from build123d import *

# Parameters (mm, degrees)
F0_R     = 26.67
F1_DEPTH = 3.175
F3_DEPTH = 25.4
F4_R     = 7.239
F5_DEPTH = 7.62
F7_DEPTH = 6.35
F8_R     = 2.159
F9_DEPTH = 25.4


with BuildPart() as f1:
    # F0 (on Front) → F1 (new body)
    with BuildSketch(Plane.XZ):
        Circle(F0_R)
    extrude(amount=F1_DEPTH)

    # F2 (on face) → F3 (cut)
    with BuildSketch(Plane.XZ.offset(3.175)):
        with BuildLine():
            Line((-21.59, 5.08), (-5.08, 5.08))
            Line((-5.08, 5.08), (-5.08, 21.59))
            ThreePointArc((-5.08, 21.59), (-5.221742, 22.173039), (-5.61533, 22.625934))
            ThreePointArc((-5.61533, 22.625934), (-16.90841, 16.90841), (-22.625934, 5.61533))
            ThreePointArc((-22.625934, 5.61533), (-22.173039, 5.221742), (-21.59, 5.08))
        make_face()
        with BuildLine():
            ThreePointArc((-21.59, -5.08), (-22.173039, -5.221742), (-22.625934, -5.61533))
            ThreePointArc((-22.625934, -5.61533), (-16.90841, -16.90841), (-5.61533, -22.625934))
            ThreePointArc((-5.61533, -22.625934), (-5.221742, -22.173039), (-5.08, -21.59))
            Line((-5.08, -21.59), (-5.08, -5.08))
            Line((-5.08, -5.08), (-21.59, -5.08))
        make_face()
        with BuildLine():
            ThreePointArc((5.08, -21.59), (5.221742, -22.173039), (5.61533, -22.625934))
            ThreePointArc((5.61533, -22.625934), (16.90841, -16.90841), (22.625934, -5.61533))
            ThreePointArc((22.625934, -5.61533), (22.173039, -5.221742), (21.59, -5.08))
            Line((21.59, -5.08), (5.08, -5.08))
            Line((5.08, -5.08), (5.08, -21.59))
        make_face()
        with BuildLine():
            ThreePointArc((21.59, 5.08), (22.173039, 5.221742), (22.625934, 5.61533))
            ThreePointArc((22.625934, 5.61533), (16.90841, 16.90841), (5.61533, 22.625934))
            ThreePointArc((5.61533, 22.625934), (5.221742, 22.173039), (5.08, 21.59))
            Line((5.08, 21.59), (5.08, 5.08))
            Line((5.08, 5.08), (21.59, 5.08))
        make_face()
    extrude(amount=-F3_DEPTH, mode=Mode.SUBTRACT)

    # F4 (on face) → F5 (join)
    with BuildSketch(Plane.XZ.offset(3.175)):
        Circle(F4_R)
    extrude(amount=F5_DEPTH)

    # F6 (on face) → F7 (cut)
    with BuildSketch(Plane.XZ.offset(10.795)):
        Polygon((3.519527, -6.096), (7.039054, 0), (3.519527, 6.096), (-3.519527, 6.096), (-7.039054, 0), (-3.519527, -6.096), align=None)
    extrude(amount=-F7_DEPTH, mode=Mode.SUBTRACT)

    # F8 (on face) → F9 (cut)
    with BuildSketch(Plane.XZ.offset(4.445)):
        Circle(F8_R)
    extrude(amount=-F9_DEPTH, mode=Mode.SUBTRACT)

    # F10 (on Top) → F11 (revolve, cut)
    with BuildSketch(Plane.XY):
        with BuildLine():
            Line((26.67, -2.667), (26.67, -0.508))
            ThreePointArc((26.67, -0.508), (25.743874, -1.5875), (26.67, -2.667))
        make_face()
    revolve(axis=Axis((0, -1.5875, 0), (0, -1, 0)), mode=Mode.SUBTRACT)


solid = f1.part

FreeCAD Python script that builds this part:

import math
import FreeCAD as App
import Part
import Sketcher
Q = App.Units.Quantity


def add_polygon(sketch, points):
    """Adds a closed chain of lines whose ends are joined by coincident constraints."""
    first, n = sketch.GeometryCount, len(points)
    for a, b in zip(points, points[1:] + points[:1]):
        sketch.addGeometry(Part.LineSegment(App.Vector(*a, 0), App.Vector(*b, 0)), False)
    for i in range(n):
        sketch.addConstraint(Sketcher.Constraint("Coincident", first + i, 2, first + (i + 1) % n, 1))

doc = App.newDocument("Part")
body = doc.addObject("PartDesign::Body", "Body")

sketch1 = body.newObject("Sketcher::SketchObject", "Sketch")
sketch1.AttachmentSupport = (doc.getObject("XZ_Plane"), [""])
sketch1.MapMode = "FlatFace"
sketch1.addGeometry(Part.Circle(App.Vector(0, 0, 0), App.Vector(0, 0, 1), 27), False)
sketch1.addConstraint(Sketcher.Constraint("Coincident", 0, 3, -1, 1))
sketch1.addConstraint(Sketcher.Constraint("Diameter", 0, Q("2.1 in")))
pad1 = body.newObject("PartDesign::Pad", "Pad")
pad1.Profile = sketch1
pad1.Length = Q("0.125 in")

sketch2 = body.newObject("Sketcher::SketchObject", "Sketch001")
sketch2.AttachmentSupport = (doc.getObject("XZ_Plane"), [""])
sketch2.MapMode = "FlatFace"
sketch2.AttachmentOffset = App.Placement(App.Vector(0, 0, 0.125 * 25.4), App.Rotation())
sketch2.addGeometry(Part.LineSegment(App.Vector(-21.6, 5.1, 0), App.Vector(-5.1, 5.1, 0)), False)
sketch2.addGeometry(Part.LineSegment(App.Vector(-5.1, 5.1, 0), App.Vector(-5.1, 21.6, 0)), False)
sketch2.addGeometry(Part.ArcOfCircle(Part.Circle(App.Vector(-6.3, 21.6, 0), App.Vector(0, 0, 1), 1.3), math.radians(0), math.radians(55)), False)
sketch2.addGeometry(Part.ArcOfCircle(Part.Circle(App.Vector(-2.5, 2.5, 0), App.Vector(0, 0, 1), 20.3), math.radians(99), math.radians(171)), False)
sketch2.addGeometry(Part.ArcOfCircle(Part.Circle(App.Vector(-21.6, 6.3, 0), App.Vector(0, 0, 1), 1.3), math.radians(-145), math.radians(-90)), False)
sketch2.addGeometry(Part.ArcOfCircle(Part.Circle(App.Vector(-21.6, -6.3, 0), App.Vector(0, 0, 1), 1.3), math.radians(90), math.radians(145)), False)
sketch2.addGeometry(Part.ArcOfCircle(Part.Circle(App.Vector(-2.5, -2.5, 0), App.Vector(0, 0, 1), 20.3), math.radians(-171), math.radians(-99)), False)
sketch2.addGeometry(Part.ArcOfCircle(Part.Circle(App.Vector(-6.3, -21.6, 0), App.Vector(0, 0, 1), 1.3), math.radians(-55), math.radians(0)), False)
sketch2.addGeometry(Part.LineSegment(App.Vector(-5.1, -21.6, 0), App.Vector(-5.1, -5.1, 0)), False)
sketch2.addGeometry(Part.LineSegment(App.Vector(-5.1, -5.1, 0), App.Vector(-21.6, -5.1, 0)), False)
sketch2.addGeometry(Part.ArcOfCircle(Part.Circle(App.Vector(6.3, -21.6, 0), App.Vector(0, 0, 1), 1.3), math.radians(180), math.radians(235)), False)
sketch2.addGeometry(Part.ArcOfCircle(Part.Circle(App.Vector(2.5, -2.5, 0), App.Vector(0, 0, 1), 20.3), math.radians(-81), math.radians(-9)), False)
sketch2.addGeometry(Part.ArcOfCircle(Part.Circle(App.Vector(21.6, -6.3, 0), App.Vector(0, 0, 1), 1.3), math.radians(35), math.radians(90)), False)
sketch2.addGeometry(Part.LineSegment(App.Vector(21.6, -5.1, 0), App.Vector(5.1, -5.1, 0)), False)
sketch2.addGeometry(Part.LineSegment(App.Vector(5.1, -5.1, 0), App.Vector(5.1, -21.6, 0)), False)
sketch2.addGeometry(Part.ArcOfCircle(Part.Circle(App.Vector(21.6, 6.3, 0), App.Vector(0, 0, 1), 1.3), math.radians(-90), math.radians(-35)), False)
sketch2.addGeometry(Part.ArcOfCircle(Part.Circle(App.Vector(2.5, 2.5, 0), App.Vector(0, 0, 1), 20.3), math.radians(9), math.radians(81)), False)
sketch2.addGeometry(Part.ArcOfCircle(Part.Circle(App.Vector(6.3, 21.6, 0), App.Vector(0, 0, 1), 1.3), math.radians(125), math.radians(180)), False)
sketch2.addGeometry(Part.LineSegment(App.Vector(5.1, 21.6, 0), App.Vector(5.1, 5.1, 0)), False)
sketch2.addGeometry(Part.LineSegment(App.Vector(5.1, 5.1, 0), App.Vector(21.6, 5.1, 0)), False)
sketch2.addConstraint(Sketcher.Constraint("Coincident", 0, 2, 1, 1))
sketch2.addConstraint(Sketcher.Constraint("Tangent", 1, 2, 2, 1))
sketch2.addConstraint(Sketcher.Constraint("Coincident", 2, 2, 3, 1))
sketch2.addConstraint(Sketcher.Constraint("Coincident", 3, 2, 4, 1))
sketch2.addConstraint(Sketcher.Constraint("Tangent", 4, 2, 0, 1))
sketch2.addConstraint(Sketcher.Constraint("Coincident", 5, 2, 6, 1))
sketch2.addConstraint(Sketcher.Constraint("Coincident", 6, 2, 7, 1))
sketch2.addConstraint(Sketcher.Constraint("Tangent", 7, 2, 8, 1))
sketch2.addConstraint(Sketcher.Constraint("Coincident", 8, 2, 9, 1))
sketch2.addConstraint(Sketcher.Constraint("Tangent", 9, 2, 5, 1))
sketch2.addConstraint(Sketcher.Constraint("Coincident", 10, 2, 11, 1))
sketch2.addConstraint(Sketcher.Constraint("Coincident", 11, 2, 12, 1))
sketch2.addConstraint(Sketcher.Constraint("Tangent", 12, 2, 13, 1))
sketch2.addConstraint(Sketcher.Constraint("Coincident", 13, 2, 14, 1))
sketch2.addConstraint(Sketcher.Constraint("Tangent", 14, 2, 10, 1))
sketch2.addConstraint(Sketcher.Constraint("Coincident", 15, 2, 16, 1))
sketch2.addConstraint(Sketcher.Constraint("Coincident", 16, 2, 17, 1))
sketch2.addConstraint(Sketcher.Constraint("Tangent", 17, 2, 18, 1))
sketch2.addConstraint(Sketcher.Constraint("Coincident", 18, 2, 19, 1))
sketch2.addConstraint(Sketcher.Constraint("Tangent", 19, 2, 15, 1))
sketch2.addConstraint(Sketcher.Constraint("Horizontal", 0))
sketch2.addConstraint(Sketcher.Constraint("Vertical", 1))
sketch2.addConstraint(Sketcher.Constraint("Vertical", 8))
sketch2.addConstraint(Sketcher.Constraint("Horizontal", 9))
sketch2.addConstraint(Sketcher.Constraint("Horizontal", 13))
sketch2.addConstraint(Sketcher.Constraint("Vertical", 14))
sketch2.addConstraint(Sketcher.Constraint("Vertical", 18))
sketch2.addConstraint(Sketcher.Constraint("Horizontal", 19))
sketch2.addConstraint(Sketcher.Constraint("Equal", 2, 4))
sketch2.addConstraint(Sketcher.Constraint("Equal", 4, 5))
sketch2.addConstraint(Sketcher.Constraint("Equal", 3, 6))
sketch2.addConstraint(Sketcher.Constraint("Equal", 5, 7))
sketch2.addConstraint(Sketcher.Constraint("Equal", 7, 10))
sketch2.addConstraint(Sketcher.Constraint("Equal", 6, 11))
sketch2.addConstraint(Sketcher.Constraint("Equal", 10, 12))
sketch2.addConstraint(Sketcher.Constraint("Equal", 12, 15))
sketch2.addConstraint(Sketcher.Constraint("Equal", 11, 16))
sketch2.addConstraint(Sketcher.Constraint("Equal", 15, 17))
sketch2.addConstraint(Sketcher.Constraint("Symmetric", 2, 3, 10, 3, -1, 1))
sketch2.addConstraint(Sketcher.Constraint("Symmetric", 3, 3, 11, 3, -1, 1))
sketch2.addConstraint(Sketcher.Constraint("Symmetric", 4, 3, 12, 3, -1, 1))
sketch2.addConstraint(Sketcher.Constraint("Symmetric", 5, 3, 15, 3, -1, 1))
sketch2.addConstraint(Sketcher.Constraint("Symmetric", 6, 3, 16, 3, -1, 1))
sketch2.addConstraint(Sketcher.Constraint("Symmetric", 7, 3, 17, 3, -1, 1))
sketch2.addConstraint(Sketcher.Constraint("Symmetric", 7, 3, 10, 3, -2))
sketch2.addConstraint(Sketcher.Constraint("Symmetric", 6, 3, 11, 3, -2))
sketch2.addConstraint(Sketcher.Constraint("Symmetric", 5, 3, 12, 3, -2))
sketch2.addConstraint(Sketcher.Constraint("Equal", 19, 1))
sketch2.addConstraint(Sketcher.Constraint("Radius", 3, Q("0.7999999 in")))
sketch2.addConstraint(Sketcher.Constraint("Radius", 2, Q("0.0499999 in")))
sketch2.addConstraint(Sketcher.Constraint("DistanceX", 0, 1, 0, 2, Q("0.65 in")))
sketch2.addConstraint(Sketcher.Constraint("DistanceX", 3, 3, -1, 1, Q("0.1 in")))
sketch2.addConstraint(Sketcher.Constraint("DistanceY", -1, 1, 3, 3, Q("0.1 in")))
sketch2.addConstraint(Sketcher.Constraint("DistanceX", 0, 2, -1, 1, Q("0.2 in")))
sketch2.addConstraint(Sketcher.Constraint("DistanceY", -1, 1, 0, 2, Q("0.2 in")))
pocket1 = body.newObject("PartDesign::Pocket", "Pocket")
pocket1.Profile = sketch2
pocket1.Length = Q("1 in")

sketch3 = body.newObject("Sketcher::SketchObject", "Sketch002")
sketch3.AttachmentSupport = (doc.getObject("XZ_Plane"), [""])
sketch3.MapMode = "FlatFace"
sketch3.AttachmentOffset = App.Placement(App.Vector(0, 0, 0.125 * 25.4), App.Rotation())
sketch3.addGeometry(Part.Circle(App.Vector(0, 0, 0), App.Vector(0, 0, 1), 7), False)
sketch3.addConstraint(Sketcher.Constraint("Coincident", 0, 3, -1, 1))
sketch3.addConstraint(Sketcher.Constraint("Diameter", 0, Q("0.57 in")))
pad2 = body.newObject("PartDesign::Pad", "Pad001")
pad2.Profile = sketch3
pad2.Length = Q("0.3 in")

sketch4 = body.newObject("Sketcher::SketchObject", "Sketch003")
sketch4.AttachmentSupport = (doc.getObject("XZ_Plane"), [""])
sketch4.MapMode = "FlatFace"
sketch4.AttachmentOffset = App.Placement(App.Vector(0, 0, 0.425 * 25.4), App.Rotation())
add_polygon(sketch4, [(4, -6), (7, 0), (4, 6), (-4, 6), (-7, 0), (-4, -6)])
sketch4.addConstraint(Sketcher.Constraint("Horizontal", 2))
sketch4.addConstraint(Sketcher.Constraint("Horizontal", 5))
sketch4.addConstraint(Sketcher.Constraint("Symmetric", 0, 2, 3, 2, -1, 1))
sketch4.addConstraint(Sketcher.Constraint("Symmetric", 1, 2, 4, 2, -1, 1))
sketch4.addConstraint(Sketcher.Constraint("PointOnObject", 0, 2, -1))
sketch4.addConstraint(Sketcher.Constraint("Parallel", 0, 3))
sketch4.addConstraint(Sketcher.Constraint("Vertical", 2, 2, 4, 2))
sketch4.addConstraint(Sketcher.Constraint("Angle", 0, Q("60.000002 deg")))
sketch4.addConstraint(Sketcher.Constraint("DistanceY", -1, 1, 1, 2, Q("0.24 in")))
sketch4.addConstraint(Sketcher.Constraint("DistanceX", 2, 2, 2, 1, Q("7.039054 mm")))
pocket2 = body.newObject("PartDesign::Pocket", "Pocket001")
pocket2.Profile = sketch4
pocket2.Length = Q("0.25 in")

sketch5 = body.newObject("Sketcher::SketchObject", "Sketch004")
sketch5.AttachmentSupport = (doc.getObject("XZ_Plane"), [""])
sketch5.MapMode = "FlatFace"
sketch5.AttachmentOffset = App.Placement(App.Vector(0, 0, 0.175 * 25.4), App.Rotation())
sketch5.addGeometry(Part.Circle(App.Vector(0, 0, 0), App.Vector(0, 0, 1), 2.2), False)
sketch5.addConstraint(Sketcher.Constraint("Coincident", 0, 3, -1, 1))
sketch5.addConstraint(Sketcher.Constraint("Diameter", 0, Q("0.17 in")))
pocket3 = body.newObject("PartDesign::Pocket", "Pocket002")
pocket3.Profile = sketch5
pocket3.Length = Q("1 in")

sketch6 = body.newObject("Sketcher::SketchObject", "Sketch005")
sketch6.AttachmentSupport = (doc.getObject("XY_Plane"), [""])
sketch6.MapMode = "FlatFace"
sketch6.addGeometry(Part.LineSegment(App.Vector(26.7, -2.7, 0), App.Vector(26.7, -0.5, 0)), False)
sketch6.addGeometry(Part.ArcOfCircle(Part.Circle(App.Vector(26.8, -1.6, 0), App.Vector(0, 0, 1), 1.1), math.radians(99), math.radians(261)), False)
sketch6.addConstraint(Sketcher.Constraint("Coincident", 0, 1, 1, 2))
sketch6.addConstraint(Sketcher.Constraint("Coincident", 1, 1, 0, 2))
sketch6.addConstraint(Sketcher.Constraint("Vertical", 0))
sketch6.addConstraint(Sketcher.Constraint("Radius", 1, Q("0.043 in")))
sketch6.addConstraint(Sketcher.Constraint("DistanceY", 0, 1, 0, 2, Q("0.085 in")))
sketch6.addConstraint(Sketcher.Constraint("DistanceX", -1, 1, 0, 1, Q("1.05 in")))
sketch6.addConstraint(Sketcher.Constraint("DistanceY", 1, 1, -1, 1, Q("0.02 in")))
groove = body.newObject("PartDesign::Groove", "Groove")
groove.Profile = sketch6
groove.ReferenceAxis = (sketch6, ["V_Axis"])
groove.Angle = 360

doc.recompute()
